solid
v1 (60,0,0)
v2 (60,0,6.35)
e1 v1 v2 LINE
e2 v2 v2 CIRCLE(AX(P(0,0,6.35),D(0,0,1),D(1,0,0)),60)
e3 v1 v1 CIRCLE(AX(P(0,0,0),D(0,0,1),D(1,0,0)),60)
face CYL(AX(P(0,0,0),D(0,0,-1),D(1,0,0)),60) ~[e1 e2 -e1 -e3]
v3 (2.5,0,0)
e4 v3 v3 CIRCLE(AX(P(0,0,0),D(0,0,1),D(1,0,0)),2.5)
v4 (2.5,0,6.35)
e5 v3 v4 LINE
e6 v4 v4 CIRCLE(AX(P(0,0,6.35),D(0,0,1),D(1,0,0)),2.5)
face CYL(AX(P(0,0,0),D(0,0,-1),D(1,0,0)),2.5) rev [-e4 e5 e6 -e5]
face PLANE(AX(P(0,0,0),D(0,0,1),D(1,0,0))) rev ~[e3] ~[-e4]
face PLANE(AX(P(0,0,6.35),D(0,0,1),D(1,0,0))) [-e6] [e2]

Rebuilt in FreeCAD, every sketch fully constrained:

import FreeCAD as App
import Part
import Sketcher
Q = App.Units.Quantity

doc = App.newDocument("Part")
params = doc.addObject("Spreadsheet::Sheet", "Params")
for row, (alias, value) in enumerate([
    ("sketch1_diameter", "120 mm"),
    ("sketch1_diameter2", "5 mm"),
    ("pad1_length", "6.35 mm"),
], start=1):
    params.set(f"A{row}", alias)
    params.set(f"B{row}", "=" + value)
    params.setAlias(f"B{row}", alias)

body = doc.addObject("PartDesign::Body", "Body")

# Sketch on XY plane
sketch1 = body.newObject("Sketcher::SketchObject", "Sketch")
sketch1.AttachmentSupport = (doc.getObject("XY_Plane"), [""])
sketch1.MapMode = "FlatFace"
sketch1.addGeometry([
    Part.Circle(App.Vector(0, 0, 0), App.Vector(0, 0, 1), 60),
    Part.Circle(App.Vector(0, 0, 0), App.Vector(0, 0, 1), 2.5),
], False)
sketch1.addConstraint([
    Sketcher.Constraint("Coincident", 0, 3, -1, 1),
    Sketcher.Constraint("Coincident", 1, 3, -1, 1),
    Sketcher.Constraint("Diameter", 0, Q("120 mm")),
    Sketcher.Constraint("Diameter", 1, Q("5 mm")),
])
sketch1.setExpression("Constraints[2]", "Params.sketch1_diameter")
sketch1.setExpression("Constraints[3]", "Params.sketch1_diameter2")
pad1 = body.newObject("PartDesign::Pad", "Pad")
pad1.Profile = sketch1
pad1.setExpression("Length", "Params.pad1_length")

doc.recompute()
